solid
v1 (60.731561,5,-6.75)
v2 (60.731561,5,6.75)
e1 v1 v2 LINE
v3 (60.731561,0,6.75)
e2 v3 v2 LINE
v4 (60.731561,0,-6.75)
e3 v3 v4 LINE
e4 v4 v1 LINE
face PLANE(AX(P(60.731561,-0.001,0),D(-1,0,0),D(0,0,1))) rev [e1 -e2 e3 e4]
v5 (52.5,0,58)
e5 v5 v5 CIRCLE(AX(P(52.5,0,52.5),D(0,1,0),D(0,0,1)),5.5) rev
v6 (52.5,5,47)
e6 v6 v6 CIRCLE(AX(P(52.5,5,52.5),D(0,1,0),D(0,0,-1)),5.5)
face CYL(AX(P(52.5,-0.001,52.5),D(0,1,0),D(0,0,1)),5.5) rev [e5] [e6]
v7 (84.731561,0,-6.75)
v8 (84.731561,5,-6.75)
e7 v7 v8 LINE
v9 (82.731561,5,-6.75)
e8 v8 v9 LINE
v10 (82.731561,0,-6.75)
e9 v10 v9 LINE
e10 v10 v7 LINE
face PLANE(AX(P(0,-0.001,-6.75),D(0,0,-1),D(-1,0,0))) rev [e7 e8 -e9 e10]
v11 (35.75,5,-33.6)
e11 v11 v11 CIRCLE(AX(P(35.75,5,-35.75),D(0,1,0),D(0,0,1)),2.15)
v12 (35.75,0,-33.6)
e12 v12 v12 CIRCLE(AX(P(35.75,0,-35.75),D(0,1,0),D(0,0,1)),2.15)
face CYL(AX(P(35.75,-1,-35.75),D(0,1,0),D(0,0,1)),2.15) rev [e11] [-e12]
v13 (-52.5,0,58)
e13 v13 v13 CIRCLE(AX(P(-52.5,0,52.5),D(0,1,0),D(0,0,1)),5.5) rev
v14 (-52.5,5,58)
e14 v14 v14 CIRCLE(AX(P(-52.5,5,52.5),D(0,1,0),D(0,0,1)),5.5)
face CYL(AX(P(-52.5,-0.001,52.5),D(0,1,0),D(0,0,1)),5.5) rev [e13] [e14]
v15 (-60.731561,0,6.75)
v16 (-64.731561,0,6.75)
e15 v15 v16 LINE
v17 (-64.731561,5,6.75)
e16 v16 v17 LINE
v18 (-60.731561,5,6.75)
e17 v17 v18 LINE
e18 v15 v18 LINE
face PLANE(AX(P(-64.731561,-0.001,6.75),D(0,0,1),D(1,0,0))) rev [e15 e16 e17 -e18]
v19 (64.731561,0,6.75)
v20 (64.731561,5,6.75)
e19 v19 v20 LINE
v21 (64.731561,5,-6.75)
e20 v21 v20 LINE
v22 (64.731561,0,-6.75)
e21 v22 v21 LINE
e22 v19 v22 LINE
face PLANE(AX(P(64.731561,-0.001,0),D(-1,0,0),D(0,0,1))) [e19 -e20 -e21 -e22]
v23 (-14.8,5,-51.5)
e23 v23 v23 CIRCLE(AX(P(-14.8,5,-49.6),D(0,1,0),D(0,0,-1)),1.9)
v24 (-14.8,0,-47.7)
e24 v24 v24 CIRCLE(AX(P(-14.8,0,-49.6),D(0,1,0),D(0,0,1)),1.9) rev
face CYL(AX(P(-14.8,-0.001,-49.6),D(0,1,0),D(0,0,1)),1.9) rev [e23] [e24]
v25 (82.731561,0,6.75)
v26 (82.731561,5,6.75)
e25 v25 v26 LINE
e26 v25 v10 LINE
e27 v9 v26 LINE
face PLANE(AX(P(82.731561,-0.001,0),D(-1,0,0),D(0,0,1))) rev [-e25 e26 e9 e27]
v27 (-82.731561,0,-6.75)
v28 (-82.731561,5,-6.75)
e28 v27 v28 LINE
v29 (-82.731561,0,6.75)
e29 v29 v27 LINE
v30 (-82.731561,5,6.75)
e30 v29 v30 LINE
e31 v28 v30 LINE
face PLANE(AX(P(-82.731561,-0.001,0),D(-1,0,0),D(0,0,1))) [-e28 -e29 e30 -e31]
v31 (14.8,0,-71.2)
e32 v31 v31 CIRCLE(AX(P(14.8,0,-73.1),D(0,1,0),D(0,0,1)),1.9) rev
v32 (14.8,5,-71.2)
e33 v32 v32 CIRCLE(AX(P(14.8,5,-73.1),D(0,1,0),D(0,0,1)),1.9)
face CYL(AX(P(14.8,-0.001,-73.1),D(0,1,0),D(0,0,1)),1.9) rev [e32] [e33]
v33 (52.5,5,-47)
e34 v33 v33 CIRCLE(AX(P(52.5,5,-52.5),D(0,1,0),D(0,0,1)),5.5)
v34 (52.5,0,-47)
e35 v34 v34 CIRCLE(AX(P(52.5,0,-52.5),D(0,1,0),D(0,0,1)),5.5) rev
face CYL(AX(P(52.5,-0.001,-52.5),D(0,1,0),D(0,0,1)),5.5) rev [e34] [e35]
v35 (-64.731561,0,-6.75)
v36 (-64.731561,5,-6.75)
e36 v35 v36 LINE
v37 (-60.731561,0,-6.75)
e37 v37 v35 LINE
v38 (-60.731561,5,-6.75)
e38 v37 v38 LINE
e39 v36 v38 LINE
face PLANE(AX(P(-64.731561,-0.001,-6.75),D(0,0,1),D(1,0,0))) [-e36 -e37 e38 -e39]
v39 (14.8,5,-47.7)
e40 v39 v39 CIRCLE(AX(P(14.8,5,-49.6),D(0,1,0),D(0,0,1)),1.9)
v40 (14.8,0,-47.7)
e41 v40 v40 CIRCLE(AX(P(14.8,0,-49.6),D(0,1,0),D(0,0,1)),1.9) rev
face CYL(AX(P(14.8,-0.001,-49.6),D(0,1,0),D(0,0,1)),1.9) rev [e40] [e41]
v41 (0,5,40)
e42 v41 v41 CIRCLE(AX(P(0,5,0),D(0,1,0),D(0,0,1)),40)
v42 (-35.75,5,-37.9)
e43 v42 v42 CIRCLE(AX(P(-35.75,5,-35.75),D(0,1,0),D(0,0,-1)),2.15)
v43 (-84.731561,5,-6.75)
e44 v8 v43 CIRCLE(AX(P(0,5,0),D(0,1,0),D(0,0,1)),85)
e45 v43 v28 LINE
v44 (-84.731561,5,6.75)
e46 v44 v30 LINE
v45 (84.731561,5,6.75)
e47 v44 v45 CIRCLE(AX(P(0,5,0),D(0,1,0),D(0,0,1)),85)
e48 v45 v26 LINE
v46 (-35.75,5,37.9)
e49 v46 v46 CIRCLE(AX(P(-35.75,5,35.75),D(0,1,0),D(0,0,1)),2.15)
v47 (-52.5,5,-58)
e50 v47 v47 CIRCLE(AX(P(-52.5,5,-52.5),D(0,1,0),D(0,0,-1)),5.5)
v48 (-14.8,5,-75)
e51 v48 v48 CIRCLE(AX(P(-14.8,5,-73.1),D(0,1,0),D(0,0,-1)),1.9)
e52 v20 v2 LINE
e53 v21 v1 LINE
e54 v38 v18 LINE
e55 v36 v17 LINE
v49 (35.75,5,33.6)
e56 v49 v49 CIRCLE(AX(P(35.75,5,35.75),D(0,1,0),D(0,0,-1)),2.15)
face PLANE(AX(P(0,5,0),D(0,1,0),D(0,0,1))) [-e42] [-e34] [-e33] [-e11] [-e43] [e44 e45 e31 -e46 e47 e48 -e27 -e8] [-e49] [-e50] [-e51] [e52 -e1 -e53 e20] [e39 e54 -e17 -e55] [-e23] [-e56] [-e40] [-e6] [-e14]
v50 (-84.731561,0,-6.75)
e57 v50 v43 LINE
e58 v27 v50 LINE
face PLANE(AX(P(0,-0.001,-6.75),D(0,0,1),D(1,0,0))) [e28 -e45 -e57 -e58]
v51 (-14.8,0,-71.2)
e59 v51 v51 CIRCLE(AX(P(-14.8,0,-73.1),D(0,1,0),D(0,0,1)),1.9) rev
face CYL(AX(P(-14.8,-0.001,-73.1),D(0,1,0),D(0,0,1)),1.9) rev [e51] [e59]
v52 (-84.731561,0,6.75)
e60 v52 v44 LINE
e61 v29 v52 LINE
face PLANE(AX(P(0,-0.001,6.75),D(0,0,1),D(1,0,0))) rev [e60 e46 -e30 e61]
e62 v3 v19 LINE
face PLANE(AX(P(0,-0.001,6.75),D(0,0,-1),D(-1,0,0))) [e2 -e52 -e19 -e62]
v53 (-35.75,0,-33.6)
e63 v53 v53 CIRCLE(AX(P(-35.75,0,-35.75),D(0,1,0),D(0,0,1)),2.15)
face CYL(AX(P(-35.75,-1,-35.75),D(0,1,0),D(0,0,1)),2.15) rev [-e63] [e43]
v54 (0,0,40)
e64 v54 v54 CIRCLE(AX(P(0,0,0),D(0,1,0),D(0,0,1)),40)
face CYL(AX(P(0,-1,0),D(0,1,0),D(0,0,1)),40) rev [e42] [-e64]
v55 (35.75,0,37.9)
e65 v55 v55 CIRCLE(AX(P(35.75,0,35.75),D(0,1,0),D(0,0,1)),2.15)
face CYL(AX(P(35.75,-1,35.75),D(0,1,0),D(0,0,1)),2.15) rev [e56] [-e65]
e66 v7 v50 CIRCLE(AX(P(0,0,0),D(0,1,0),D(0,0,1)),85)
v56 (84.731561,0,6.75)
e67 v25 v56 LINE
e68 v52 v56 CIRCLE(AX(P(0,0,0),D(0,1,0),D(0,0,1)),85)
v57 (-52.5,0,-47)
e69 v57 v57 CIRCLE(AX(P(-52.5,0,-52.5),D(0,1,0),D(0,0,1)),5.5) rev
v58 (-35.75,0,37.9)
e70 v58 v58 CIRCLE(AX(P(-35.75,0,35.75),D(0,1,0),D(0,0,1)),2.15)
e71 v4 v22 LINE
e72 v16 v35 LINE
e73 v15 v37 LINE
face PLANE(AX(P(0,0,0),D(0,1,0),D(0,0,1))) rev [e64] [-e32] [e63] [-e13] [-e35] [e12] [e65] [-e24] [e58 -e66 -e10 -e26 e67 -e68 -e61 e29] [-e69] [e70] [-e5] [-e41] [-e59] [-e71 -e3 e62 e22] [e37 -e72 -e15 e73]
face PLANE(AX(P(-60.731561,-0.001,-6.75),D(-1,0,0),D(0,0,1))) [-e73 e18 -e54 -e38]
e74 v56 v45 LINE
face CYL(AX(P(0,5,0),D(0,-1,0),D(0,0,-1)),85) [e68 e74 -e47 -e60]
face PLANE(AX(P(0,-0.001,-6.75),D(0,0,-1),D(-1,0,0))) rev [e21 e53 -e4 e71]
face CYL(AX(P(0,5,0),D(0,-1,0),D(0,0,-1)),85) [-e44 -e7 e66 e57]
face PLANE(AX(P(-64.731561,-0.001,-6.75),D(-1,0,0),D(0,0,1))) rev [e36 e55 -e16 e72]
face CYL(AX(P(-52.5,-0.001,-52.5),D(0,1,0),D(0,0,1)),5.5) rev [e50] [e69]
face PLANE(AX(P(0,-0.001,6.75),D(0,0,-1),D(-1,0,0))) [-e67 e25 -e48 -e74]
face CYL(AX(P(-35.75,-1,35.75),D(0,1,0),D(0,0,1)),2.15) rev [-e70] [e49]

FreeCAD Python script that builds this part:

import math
import FreeCAD as App
import Part
import Sketcher
from FreeCAD import Vector
Q = App.Units.Quantity


def add_polygon(sketch, points):
    """Adds a closed chain of lines whose ends are joined by coincident constraints."""
    first, n = sketch.GeometryCount, len(points)
    for a, b in zip(points, points[1:] + points[:1]):
        sketch.addGeometry(Part.LineSegment(App.Vector(*a, 0), App.Vector(*b, 0)), False)
    for i in range(n):
        sketch.addConstraint(Sketcher.Constraint("Coincident", first + i, 2, first + (i + 1) % n, 1))

doc = App.newDocument("Part")
params = doc.addObject("Spreadsheet::Sheet", "Params")
for row, (alias, value) in enumerate([
    ("sketch1_diameter", "170 mm"),
    ("pad1_length", "5 mm"),
    ("sketch2_width", "4 mm"),
    ("sketch2_height", "13.5 mm"),
    ("sketch3_radius", "85 mm"),
    ("sketch3_width", "2 mm"),
    ("sketch3_height", "13.5 mm"),
    ("sketch4_radius", "85 mm"),
    ("sketch4_width", "2 mm"),
    ("sketch4_height", "13.5 mm"),
    ("sketch5_width", "4 mm"),
    ("sketch5_height", "13.5 mm"),
    ("sketch6_diameter", "3.8 mm"),
    ("sketch7_diameter", "3.8 mm"),
    ("sketch8_diameter", "3.8 mm"),
    ("sketch9_diameter", "3.8 mm"),
    ("sketch10_diameter", "4.3 mm"),
    ("pocket9_length", "6 mm"),
    ("sketch11_diameter", "80 mm"),
    ("pocket10_length", "6 mm"),
    ("sketch12_diameter", "11 mm"),
    ("sketch13_diameter", "11 mm"),
    ("sketch14_diameter", "11 mm"),
    ("sketch15_diameter", "11 mm"),
], start=1):
    params.set(f"A{row}", alias)
    params.set(f"B{row}", "=" + value)
    params.setAlias(f"B{row}", alias)

body = doc.addObject("PartDesign::Body", "Body")

# Sketch on XZ plane
sketch1 = body.newObject("Sketcher::SketchObject", "Sketch")
sketch1.AttachmentSupport = (doc.getObject("XZ_Plane"), [""])
sketch1.MapMode = "FlatFace"
sketch1.addGeometry(Part.Circle(Vector(0, 0, 0), Vector(0, 0, 1), 85), False)
sketch1.addConstraint([
    Sketcher.Constraint("Coincident", 0, 3, -1, 1),
    Sketcher.Constraint("Diameter", 0, Q("170 mm")),
])
sketch1.setExpression("Constraints[1]", "Params.sketch1_diameter")
pad1 = body.newObject("PartDesign::Pad", "Pad")
pad1.Profile = sketch1
pad1.setExpression("Length", "Params.pad1_length")
pad1.Reversed = True

# Sketch on XZ plane
sketch2 = body.newObject("Sketcher::SketchObject", "Sketch001")
sketch2.AttachmentSupport = (doc.getObject("XZ_Plane"), [""])
sketch2.MapMode = "FlatFace"
sketch2.AttachmentOffset = App.Placement(Vector(0, 0, -5), App.Rotation())
add_polygon(sketch2, [(60.7, -6.8), (60.7, 6.8), (64.7, 6.8), (64.7, -6.8)])  # lines 0-3
sketch2.addConstraint([
    Sketcher.Constraint("Vertical", 0),
    Sketcher.Constraint("Horizontal", 1),
    Sketcher.Constraint("Vertical", 2),
    Sketcher.Constraint("Horizontal", 3),
    Sketcher.Constraint("DistanceX", 1, 1, 1, 2, Q("4 mm")),
    Sketcher.Constraint("DistanceY", 0, 1, 0, 2, Q("13.5 mm")),
    Sketcher.Constraint("DistanceY", -1, 1, 0, 2, Q("6.75 mm")),
    Sketcher.Constraint("DistanceX", -1, 1, 0, 2, Q("60.731561 mm")),
])
sketch2.setExpression("Constraints[8]", "Params.sketch2_width")
sketch2.setExpression("Constraints[9]", "Params.sketch2_height")
pocket1 = body.newObject("PartDesign::Pocket", "Pocket")
pocket1.Profile = sketch2
pocket1.Type = "UpToFirst"
pocket1.Reversed = True

# Sketch on XZ plane
sketch3 = body.newObject("Sketcher::SketchObject", "Sketch002")
sketch3.AttachmentSupport = (doc.getObject("XZ_Plane"), [""])
sketch3.MapMode = "FlatFace"
sketch3.AttachmentOffset = App.Placement(Vector(0, 0, -5), App.Rotation())
sketch3.addGeometry([
    Part.ArcOfCircle(Part.Circle(Vector(0, 0, 0), Vector(0, 0, 1), 85), math.radians(-4.55), math.radians(0)),  # 0
    Part.LineSegment(Vector(84.7, -6.8, 0), Vector(82.7, -6.8, 0)),  # 1
    Part.LineSegment(Vector(82.7, -6.8, 0), Vector(82.7, 6.8, 0)),  # 2
    Part.LineSegment(Vector(82.7, 6.8, 0), Vector(84.7, 6.8, 0)),  # 3
    Part.ArcOfCircle(Part.Circle(Vector(0, 0, 0), Vector(0, 0, 1), 85), math.radians(0), math.radians(4.55)),  # 4
], False)
sketch3.addConstraint([
    Sketcher.Constraint("Coincident", 0, 1, 1, 1),
    Sketcher.Constraint("Coincident", 1, 2, 2, 1),
    Sketcher.Constraint("Coincident", 2, 2, 3, 1),
    Sketcher.Constraint("Coincident", 3, 2, 4, 2),
    Sketcher.Constraint("Tangent", 4, 1, 0, 2),
    Sketcher.Constraint("Horizontal", 1),
    Sketcher.Constraint("Vertical", 2),
    Sketcher.Constraint("Horizontal", 3),
    Sketcher.Constraint("Coincident", 0, 3, -1, 1),
    Sketcher.Constraint("Equal", 0, 4),
    Sketcher.Constraint("PointOnObject", 4, 1, -1),
    Sketcher.Constraint("Vertical", 0, 1, 3, 2),
    Sketcher.Constraint("Radius", 0, Q("85 mm")),
    Sketcher.Constraint("DistanceX", 1, 2, 1, 1, Q("2 mm")),
    Sketcher.Constraint("DistanceY", 2, 1, 2, 2, Q("13.5 mm")),
])
sketch3.setExpression("Constraints[12]", "Params.sketch3_radius")
sketch3.setExpression("Constraints[13]", "Params.sketch3_width")
sketch3.setExpression("Constraints[14]", "Params.sketch3_height")
pocket2 = body.newObject("PartDesign::Pocket", "Pocket001")
pocket2.Profile = sketch3
pocket2.Type = "UpToFirst"
pocket2.Reversed = True

# Sketch on XZ plane
sketch4 = body.newObject("Sketcher::SketchObject", "Sketch003")
sketch4.AttachmentSupport = (doc.getObject("XZ_Plane"), [""])
sketch4.MapMode = "FlatFace"
sketch4.AttachmentOffset = App.Placement(Vector(0, 0, -5), App.Rotation())
sketch4.addGeometry([
    Part.LineSegment(Vector(-82.7, -6.8, 0), Vector(-84.7, -6.8, 0)),
    Part.ArcOfCircle(Part.Circle(Vector(0, 0, 0), Vector(0, 0, 1), 85), math.radians(175.45), math.radians(184.55)),
    Part.LineSegment(Vector(-84.7, 6.8, 0), Vector(-82.7, 6.8, 0)),
    Part.LineSegment(Vector(-82.7, 6.8, 0), Vector(-82.7, -6.8, 0)),
], False)
sketch4.addConstraint([
    Sketcher.Constraint("Coincident", 0, 2, 1, 2),
    Sketcher.Constraint("Coincident", 1, 1, 2, 1),
    Sketcher.Constraint("Coincident", 2, 2, 3, 1),
    Sketcher.Constraint("Coincident", 3, 2, 0, 1),
    Sketcher.Constraint("Horizontal", 0),
    Sketcher.Constraint("Horizontal", 2),
    Sketcher.Constraint("Vertical", 3),
    Sketcher.Constraint("Coincident", 1, 3, -1, 1),
    Sketcher.Constraint("Vertical", 0, 2, 1, 1),
    Sketcher.Constraint("Radius", 1, Q("85 mm")),
    Sketcher.Constraint("DistanceX", 0, 2, 0, 1, Q("2 mm")),
    Sketcher.Constraint("DistanceY", 3, 2, 3, 1, Q("13.5 mm")),
])
sketch4.setExpression("Constraints[9]", "Params.sketch4_radius")
sketch4.setExpression("Constraints[10]", "Params.sketch4_width")
sketch4.setExpression("Constraints[11]", "Params.sketch4_height")
pocket3 = body.newObject("PartDesign::Pocket", "Pocket002")
pocket3.Profile = sketch4
pocket3.Type = "UpToFirst"
pocket3.Reversed = True

# Sketch on XZ plane
sketch5 = body.newObject("Sketcher::SketchObject", "Sketch004")
sketch5.AttachmentSupport = (doc.getObject("XZ_Plane"), [""])
sketch5.MapMode = "FlatFace"
sketch5.AttachmentOffset = App.Placement(Vector(0, 0, -5), App.Rotation())
add_polygon(sketch5, [(-64.7, -6.8), (-64.7, 6.8), (-60.7, 6.8), (-60.7, -6.8)])  # lines 0-3
sketch5.addConstraint([
    Sketcher.Constraint("Vertical", 0),
    Sketcher.Constraint("Horizontal", 1),
    Sketcher.Constraint("Vertical", 2),
    Sketcher.Constraint("Horizontal", 3),
    Sketcher.Constraint("DistanceX", 1, 1, 1, 2, Q("4 mm")),
    Sketcher.Constraint("DistanceY", 0, 1, 0, 2, Q("13.5 mm")),
    Sketcher.Constraint("DistanceY", -1, 1, 0, 2, Q("6.75 mm")),
    Sketcher.Constraint("DistanceX", 0, 2, -1, 1, Q("64.731561 mm")),
])
sketch5.setExpression("Constraints[8]", "Params.sketch5_width")
sketch5.setExpression("Constraints[9]", "Params.sketch5_height")
pocket4 = body.newObject("PartDesign::Pocket", "Pocket003")
pocket4.Profile = sketch5
pocket4.Type = "UpToFirst"
pocket4.Reversed = True

# Sketch on XZ plane
sketch6 = body.newObject("Sketcher::SketchObject", "Sketch005")
sketch6.AttachmentSupport = (doc.getObject("XZ_Plane"), [""])
sketch6.MapMode = "FlatFace"
sketch6.AttachmentOffset = App.Placement(Vector(0, 0, -5), App.Rotation())
sketch6.addGeometry(Part.Circle(Vector(14.8, -73.1, 0), Vector(0, 0, 1), 1.9), False)
sketch6.addConstraint([
    Sketcher.Constraint("Diameter", 0, Q("3.8 mm")),
    Sketcher.Constraint("DistanceX", -1, 1, 0, 3, Q("14.8 mm")),
    Sketcher.Constraint("DistanceY", 0, 3, -1, 1, Q("73.1 mm")),
])
sketch6.setExpression("Constraints[0]", "Params.sketch6_diameter")
pocket5 = body.newObject("PartDesign::Pocket", "Pocket004")
pocket5.Profile = sketch6
pocket5.Type = "UpToFirst"
pocket5.Reversed = True

# Sketch on XZ plane
sketch7 = body.newObject("Sketcher::SketchObject", "Sketch006")
sketch7.AttachmentSupport = (doc.getObject("XZ_Plane"), [""])
sketch7.MapMode = "FlatFace"
sketch7.AttachmentOffset = App.Placement(Vector(0, 0, -5), App.Rotation())
sketch7.addGeometry(Part.Circle(Vector(14.8, -49.6, 0), Vector(0, 0, 1), 1.9), False)
sketch7.addConstraint([
    Sketcher.Constraint("Diameter", 0, Q("3.8 mm")),
    Sketcher.Constraint("DistanceX", -1, 1, 0, 3, Q("14.8 mm")),
    Sketcher.Constraint("DistanceY", 0, 3, -1, 1, Q("49.6 mm")),
])
sketch7.setExpression("Constraints[0]", "Params.sketch7_diameter")
pocket6 = body.newObject("PartDesign::Pocket", "Pocket005")
pocket6.Profile = sketch7
pocket6.Type = "UpToFirst"
pocket6.Reversed = True

# Sketch on XZ plane
sketch8 = body.newObject("Sketcher::SketchObject", "Sketch007")
sketch8.AttachmentSupport = (doc.getObject("XZ_Plane"), [""])
sketch8.MapMode = "FlatFace"
sketch8.AttachmentOffset = App.Placement(Vector(0, 0, -5), App.Rotation())
sketch8.addGeometry(Part.Circle(Vector(-14.8, -49.6, 0), Vector(0, 0, 1), 1.9), False)
sketch8.addConstraint([
    Sketcher.Constraint("Diameter", 0, Q("3.8 mm")),
    Sketcher.Constraint("DistanceX", 0, 3, -1, 1, Q("14.8 mm")),
    Sketcher.Constraint("DistanceY", 0, 3, -1, 1, Q("49.6 mm")),
])
sketch8.setExpression("Constraints[0]", "Params.sketch8_diameter")
pocket7 = body.newObject("PartDesign::Pocket", "Pocket006")
pocket7.Profile = sketch8
pocket7.Type = "UpToFirst"
pocket7.Reversed = True

# Sketch on XZ plane
sketch9 = body.newObject("Sketcher::SketchObject", "Sketch008")
sketch9.AttachmentSupport = (doc.getObject("XZ_Plane"), [""])
sketch9.MapMode = "FlatFace"
sketch9.AttachmentOffset = App.Placement(Vector(0, 0, -5), App.Rotation())
sketch9.addGeometry(Part.Circle(Vector(-14.8, -73.1, 0), Vector(0, 0, 1), 1.9), False)
sketch9.addConstraint([
    Sketcher.Constraint("Diameter", 0, Q("3.8 mm")),
    Sketcher.Constraint("DistanceX", 0, 3, -1, 1, Q("14.8 mm")),
    Sketcher.Constraint("DistanceY", 0, 3, -1, 1, Q("73.1 mm")),
])
sketch9.setExpression("Constraints[0]", "Params.sketch9_diameter")
pocket8 = body.newObject("PartDesign::Pocket", "Pocket007")
pocket8.Profile = sketch9
pocket8.Type = "UpToFirst"
pocket8.Reversed = True

# Sketch on XZ plane
sketch10 = body.newObject("Sketcher::SketchObject", "Sketch009")
sketch10.AttachmentSupport = (doc.getObject("XZ_Plane"), [""])
sketch10.MapMode = "FlatFace"
sketch10.AttachmentOffset = App.Placement(Vector(0, 0, -5), App.Rotation())
sketch10.addGeometry([
    Part.Circle(Vector(35.8, -35.8, 0), Vector(0, 0, 1), 2.1),
    Part.Circle(Vector(-35.8, -35.8, 0), Vector(0, 0, 1), 2.1),
    Part.Circle(Vector(35.8, 35.8, 0), Vector(0, 0, 1), 2.1),
    Part.Circle(Vector(-35.8, 35.8, 0), Vector(0, 0, 1), 2.1),
], False)
sketch10.addConstraint([
    Sketcher.Constraint("Equal", 0, 1),
    Sketcher.Constraint("Equal", 1, 2),
    Sketcher.Constraint("Equal", 2, 3),
    Sketcher.Constraint("Symmetric", 1, 3, 2, 3, -1, 1),
    Sketcher.Constraint("Symmetric", 0, 3, 3, 3, -1, 1),
    Sketcher.Constraint("Symmetric", 0, 3, 1, 3, -2),
    Sketcher.Constraint("Diameter", 0, Q("4.3 mm")),
    Sketcher.Constraint("DistanceX", 1, 3, 0, 3, Q("71.5 mm")),
    Sketcher.Constraint("DistanceY", 0, 3, 2, 3, Q("71.5 mm")),
])
sketch10.setExpression("Constraints[6]", "Params.sketch10_diameter")
pocket9 = body.newObject("PartDesign::Pocket", "Pocket008")
pocket9.Profile = sketch10
pocket9.setExpression("Length", "Params.pocket9_length")
pocket9.Reversed = True

# Sketch on XZ plane
sketch11 = body.newObject("Sketcher::SketchObject", "Sketch010")
sketch11.AttachmentSupport = (doc.getObject("XZ_Plane"), [""])
sketch11.MapMode = "FlatFace"
sketch11.AttachmentOffset = App.Placement(Vector(0, 0, -5), App.Rotation())
sketch11.addGeometry(Part.Circle(Vector(0, 0, 0), Vector(0, 0, 1), 40), False)
sketch11.addConstraint([
    Sketcher.Constraint("Coincident", 0, 3, -1, 1),
    Sketcher.Constraint("Diameter", 0, Q("80 mm")),
])
sketch11.setExpression("Constraints[1]", "Params.sketch11_diameter")
pocket10 = body.newObject("PartDesign::Pocket", "Pocket009")
pocket10.Profile = sketch11
pocket10.setExpression("Length", "Params.pocket10_length")
pocket10.Reversed = True

# Sketch on XZ plane
sketch12 = body.newObject("Sketcher::SketchObject", "Sketch011")
sketch12.AttachmentSupport = (doc.getObject("XZ_Plane"), [""])
sketch12.MapMode = "FlatFace"
sketch12.AttachmentOffset = App.Placement(Vector(0, 0, -5), App.Rotation())
sketch12.addGeometry(Part.Circle(Vector(52, -52, 0), Vector(0, 0, 1), 6), False)
sketch12.addConstraint([
    Sketcher.Constraint("Diameter", 0, Q("11 mm")),
    Sketcher.Constraint("DistanceX", -1, 1, 0, 3, Q("52.5 mm")),
    Sketcher.Constraint("DistanceY", 0, 3, -1, 1, Q("52.5 mm")),
])
sketch12.setExpression("Constraints[0]", "Params.sketch12_diameter")
pocket11 = body.newObject("PartDesign::Pocket", "Pocket010")
pocket11.Profile = sketch12
pocket11.Type = "UpToFirst"
pocket11.Reversed = True

# Sketch on XZ plane
sketch13 = body.newObject("Sketcher::SketchObject", "Sketch012")
sketch13.AttachmentSupport = (doc.getObject("XZ_Plane"), [""])
sketch13.MapMode = "FlatFace"
sketch13.AttachmentOffset = App.Placement(Vector(0, 0, -5), App.Rotation())
sketch13.addGeometry(Part.Circle(Vector(-52, -52, 0), Vector(0, 0, 1), 6), False)
sketch13.addConstraint([
    Sketcher.Constraint("Diameter", 0, Q("11 mm")),
    Sketcher.Constraint("DistanceX", 0, 3, -1, 1, Q("52.5 mm")),
    Sketcher.Constraint("DistanceY", 0, 3, -1, 1, Q("52.5 mm")),
])
sketch13.setExpression("Constraints[0]", "Params.sketch13_diameter")
pocket12 = body.newObject("PartDesign::Pocket", "Pocket011")
pocket12.Profile = sketch13
pocket12.Type = "UpToFirst"
pocket12.Reversed = True

# Sketch on XZ plane
sketch14 = body.newObject("Sketcher::SketchObject", "Sketch013")
sketch14.AttachmentSupport = (doc.getObject("XZ_Plane"), [""])
sketch14.MapMode = "FlatFace"
sketch14.AttachmentOffset = App.Placement(Vector(0, 0, -5), App.Rotation())
sketch14.addGeometry(Part.Circle(Vector(52, 52, 0), Vector(0, 0, 1), 6), False)
sketch14.addConstraint([
    Sketcher.Constraint("Diameter", 0, Q("11 mm")),
    Sketcher.Constraint("DistanceX", -1, 1, 0, 3, Q("52.5 mm")),
    Sketcher.Constraint("DistanceY", -1, 1, 0, 3, Q("52.5 mm")),
])
sketch14.setExpression("Constraints[0]", "Params.sketch14_diameter")
pocket13 = body.newObject("PartDesign::Pocket", "Pocket012")
pocket13.Profile = sketch14
pocket13.Type = "UpToFirst"
pocket13.Reversed = True

# Sketch on XZ plane
sketch15 = body.newObject("Sketcher::SketchObject", "Sketch014")
sketch15.AttachmentSupport = (doc.getObject("XZ_Plane"), [""])
sketch15.MapMode = "FlatFace"
sketch15.AttachmentOffset = App.Placement(Vector(0, 0, -5), App.Rotation())
sketch15.addGeometry(Part.Circle(Vector(-52, 52, 0), Vector(0, 0, 1), 6), False)
sketch15.addConstraint([
    Sketcher.Constraint("Diameter", 0, Q("11 mm")),
    Sketcher.Constraint("DistanceX", 0, 3, -1, 1, Q("52.5 mm")),
    Sketcher.Constraint("DistanceY", -1, 1, 0, 3, Q("52.5 mm")),
])
sketch15.setExpression("Constraints[0]", "Params.sketch15_diameter")
pocket14 = body.newObject("PartDesign::Pocket", "Pocket013")
pocket14.Profile = sketch15
pocket14.Type = "UpToFirst"
pocket14.Reversed = True

doc.recompute()
